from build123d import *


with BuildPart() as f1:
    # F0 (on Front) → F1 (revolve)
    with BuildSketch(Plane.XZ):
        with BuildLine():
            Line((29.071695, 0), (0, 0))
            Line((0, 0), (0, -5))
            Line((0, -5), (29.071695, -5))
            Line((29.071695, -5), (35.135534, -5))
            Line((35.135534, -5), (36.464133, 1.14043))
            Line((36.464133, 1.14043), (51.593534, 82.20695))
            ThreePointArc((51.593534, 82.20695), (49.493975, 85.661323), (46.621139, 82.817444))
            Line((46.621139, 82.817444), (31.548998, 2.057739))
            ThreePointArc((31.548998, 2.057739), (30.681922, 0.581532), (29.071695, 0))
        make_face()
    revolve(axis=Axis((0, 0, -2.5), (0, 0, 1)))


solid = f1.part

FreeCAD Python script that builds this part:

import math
import FreeCAD as App
import Part
import Sketcher

V = App.Vector
Q = App.Units.Quantity

doc = App.newDocument("Part")
body = doc.addObject("PartDesign::Body", "Body")

sketch1 = doc.addObject("Sketcher::SketchObject", "Sketch")
body.addObject(sketch1)
sketch1.AttachmentSupport = (doc.XZ_Plane, [""])
sketch1.MapMode = "FlatFace"
sketch1.addGeometry([
    Part.LineSegment(V(29.1, 0, 0), V(0, 0, 0)),
    Part.LineSegment(V(0, 0, 0), V(0, -5, 0)),
    Part.LineSegment(V(0, -5, 0), V(35.1, -5, 0)),
    Part.LineSegment(V(35.1, -5, 0), V(36.5, 1.1, 0)),
    Part.LineSegment(V(36.5, 1.1, 0), V(51.6, 82.2, 0)),
    Part.ArcOfCircle(Part.Circle(V(49.2, 83.1, 0), V(0, 0, 1), 2.6), math.radians(-20), math.radians(186)),
    Part.LineSegment(V(46.6, 82.8, 0), V(31.5, 2.1, 0)),
    Part.ArcOfCircle(Part.Circle(V(29.1, 2.5, 0), V(0, 0, 1), 2.5), math.radians(-90), math.radians(-11)),
], False)
sketch1.addConstraint([
    Sketcher.Constraint("Coincident", 0, 2, 1, 1),
    Sketcher.Constraint("Coincident", 1, 2, 2, 1),
    Sketcher.Constraint("Coincident", 2, 2, 3, 1),
    Sketcher.Constraint("Coincident", 3, 2, 4, 1),
    Sketcher.Constraint("Coincident", 4, 2, 5, 1),
    Sketcher.Constraint("Coincident", 5, 2, 6, 1),
    Sketcher.Constraint("Tangent", 6, 2, 7, 2),
    Sketcher.Constraint("Tangent", 7, 1, 0, 1),
    Sketcher.Constraint("Horizontal", 0),
    Sketcher.Constraint("Vertical", 1),
    Sketcher.Constraint("Horizontal", 2),
    Sketcher.Constraint("Coincident", 0, 2, -1, 1),
    Sketcher.Constraint("Parallel", 4, 6),
    Sketcher.Constraint("DistanceY", 1, 2, 1, 1, Q("5 mm")),
    Sketcher.Constraint("DistanceX", -1, 1, 6, 2, Q("31.548998 mm")),
    Sketcher.Constraint("Radius", 5, Q("2.575167 mm")),
    Sketcher.Constraint("Radius", 7, Q("2.520077 mm")),
    Sketcher.Constraint("DistanceX", 2, 2, 4, 2, Q("16.458 mm")),
    Sketcher.Constraint("DistanceX", 2, 2, 3, 2, Q("1.328599 mm")),
    Sketcher.Constraint("DistanceY", 4, 2, 5, 3, Q("0.898398 mm")),
    Sketcher.Constraint("Distance", 3, Q("6.28252 mm")),
    Sketcher.Constraint("Distance", 6, Q("82.15412 mm")),
    Sketcher.Constraint("DistanceX", 2, 1, 2, 2, Q("35.135534 mm")),
])
revolution = doc.addObject("PartDesign::Revolution", "Revolution")
body.addObject(revolution)
revolution.Profile = sketch1
revolution.ReferenceAxis = (sketch1, ["V_Axis"])
revolution.Angle = 360

doc.recompute()
